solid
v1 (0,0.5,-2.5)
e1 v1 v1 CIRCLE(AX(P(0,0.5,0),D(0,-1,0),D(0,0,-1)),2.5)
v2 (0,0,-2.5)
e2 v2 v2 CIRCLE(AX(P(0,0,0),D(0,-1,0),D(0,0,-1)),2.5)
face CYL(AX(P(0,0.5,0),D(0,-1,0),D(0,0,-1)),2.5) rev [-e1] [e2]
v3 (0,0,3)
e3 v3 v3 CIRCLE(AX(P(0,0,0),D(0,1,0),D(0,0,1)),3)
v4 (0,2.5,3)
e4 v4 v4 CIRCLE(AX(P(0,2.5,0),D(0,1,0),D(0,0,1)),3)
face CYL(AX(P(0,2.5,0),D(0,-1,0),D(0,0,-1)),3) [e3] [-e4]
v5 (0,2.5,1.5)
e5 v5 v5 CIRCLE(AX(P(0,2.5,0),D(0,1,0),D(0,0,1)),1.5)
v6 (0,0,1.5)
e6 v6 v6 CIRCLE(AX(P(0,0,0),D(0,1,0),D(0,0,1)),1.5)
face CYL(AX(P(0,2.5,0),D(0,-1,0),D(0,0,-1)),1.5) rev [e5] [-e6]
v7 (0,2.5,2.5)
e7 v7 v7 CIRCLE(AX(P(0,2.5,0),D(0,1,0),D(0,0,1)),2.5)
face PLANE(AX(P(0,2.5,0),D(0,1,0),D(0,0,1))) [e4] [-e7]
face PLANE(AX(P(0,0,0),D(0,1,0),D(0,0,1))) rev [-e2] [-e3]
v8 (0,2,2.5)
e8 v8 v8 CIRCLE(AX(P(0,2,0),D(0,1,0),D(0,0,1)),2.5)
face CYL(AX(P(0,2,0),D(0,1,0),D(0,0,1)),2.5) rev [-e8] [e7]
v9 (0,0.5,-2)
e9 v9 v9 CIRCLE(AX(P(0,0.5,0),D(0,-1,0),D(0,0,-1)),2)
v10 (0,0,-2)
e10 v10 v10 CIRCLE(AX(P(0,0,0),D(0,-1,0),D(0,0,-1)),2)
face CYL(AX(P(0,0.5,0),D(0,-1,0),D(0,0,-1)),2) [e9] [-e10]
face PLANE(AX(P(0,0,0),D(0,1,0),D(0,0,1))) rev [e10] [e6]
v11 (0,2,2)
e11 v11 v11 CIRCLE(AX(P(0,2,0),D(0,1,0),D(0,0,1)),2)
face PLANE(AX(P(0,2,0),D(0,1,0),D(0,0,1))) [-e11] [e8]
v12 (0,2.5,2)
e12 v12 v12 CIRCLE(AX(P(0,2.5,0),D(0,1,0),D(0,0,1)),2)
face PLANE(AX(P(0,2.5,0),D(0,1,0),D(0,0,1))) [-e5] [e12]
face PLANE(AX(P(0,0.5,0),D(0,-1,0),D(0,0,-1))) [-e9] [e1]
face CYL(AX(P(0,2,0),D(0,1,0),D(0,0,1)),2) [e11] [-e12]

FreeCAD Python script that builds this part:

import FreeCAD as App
import Part
import Sketcher

V = App.Vector
Q = App.Units.Quantity

doc = App.newDocument("Part")
body = doc.addObject("PartDesign::Body", "Body")

# Sketch on XZ plane
sketch1 = doc.addObject("Sketcher::SketchObject", "Sketch")
body.addObject(sketch1)
sketch1.AttachmentSupport = (doc.XZ_Plane, [""])
sketch1.MapMode = "FlatFace"
sketch1.addGeometry([
    Part.Circle(V(0, 0, 0), V(0, 0, 1), 3),
    Part.Circle(V(0, 0, 0), V(0, 0, 1), 1.5),
], False)
sketch1.addConstraint([
    Sketcher.Constraint("Coincident", 0, 3, -1, 1),
    Sketcher.Constraint("Coincident", 1, 3, -1, 1),
    Sketcher.Constraint("Diameter", 0, Q("6 mm")),
    Sketcher.Constraint("Diameter", 1, Q("3 mm")),
])
pad1 = doc.addObject("PartDesign::Pad", "Pad")
body.addObject(pad1)
pad1.Profile = sketch1
pad1.Length = 2.5
pad1.Reversed = True

# Sketch on XZ plane
sketch2 = doc.addObject("Sketcher::SketchObject", "Sketch001")
body.addObject(sketch2)
sketch2.AttachmentSupport = (doc.XZ_Plane, [""])
sketch2.MapMode = "FlatFace"
sketch2.AttachmentOffset = App.Placement(V(0, 0, -2.5), App.Rotation())
sketch2.addGeometry([
    Part.Circle(V(0, 0, 0), V(0, 0, 1), 2.5),
    Part.Circle(V(0, 0, 0), V(0, 0, 1), 2),
], False)
sketch2.addConstraint([
    Sketcher.Constraint("Coincident", 0, 3, -1, 1),
    Sketcher.Constraint("Coincident", 1, 3, -1, 1),
    Sketcher.Constraint("Diameter", 0, Q("5 mm")),
    Sketcher.Constraint("Diameter", 1, Q("4 mm")),
])
pocket1 = doc.addObject("PartDesign::Pocket", "Pocket")
body.addObject(pocket1)
pocket1.Profile = sketch2
pocket1.Length = 0.5
pocket1.Reversed = True

# Sketch on XZ plane
sketch3 = doc.addObject("Sketcher::SketchObject", "Sketch002")
body.addObject(sketch3)
sketch3.AttachmentSupport = (doc.XZ_Plane, [""])
sketch3.MapMode = "FlatFace"
sketch3.AttachmentOffset = App.Placement(V(0, 0, -0.5), App.Rotation())
sketch3.addGeometry([
    Part.Circle(V(0, 0, 0), V(0, 0, 1), 2.5),
    Part.Circle(V(0, 0, 0), V(0, 0, 1), 2),
], False)
sketch3.addConstraint([
    Sketcher.Constraint("Coincident", 0, 3, -1, 1),
    Sketcher.Constraint("Coincident", 1, 3, -1, 1),
    Sketcher.Constraint("Diameter", 0, Q("5 mm")),
    Sketcher.Constraint("Diameter", 1, Q("4 mm")),
])
pocket2 = doc.addObject("PartDesign::Pocket", "Pocket001")
body.addObject(pocket2)
pocket2.Profile = sketch3
pocket2.Length = 0.5
pocket2.Reversed = True

doc.recompute()
